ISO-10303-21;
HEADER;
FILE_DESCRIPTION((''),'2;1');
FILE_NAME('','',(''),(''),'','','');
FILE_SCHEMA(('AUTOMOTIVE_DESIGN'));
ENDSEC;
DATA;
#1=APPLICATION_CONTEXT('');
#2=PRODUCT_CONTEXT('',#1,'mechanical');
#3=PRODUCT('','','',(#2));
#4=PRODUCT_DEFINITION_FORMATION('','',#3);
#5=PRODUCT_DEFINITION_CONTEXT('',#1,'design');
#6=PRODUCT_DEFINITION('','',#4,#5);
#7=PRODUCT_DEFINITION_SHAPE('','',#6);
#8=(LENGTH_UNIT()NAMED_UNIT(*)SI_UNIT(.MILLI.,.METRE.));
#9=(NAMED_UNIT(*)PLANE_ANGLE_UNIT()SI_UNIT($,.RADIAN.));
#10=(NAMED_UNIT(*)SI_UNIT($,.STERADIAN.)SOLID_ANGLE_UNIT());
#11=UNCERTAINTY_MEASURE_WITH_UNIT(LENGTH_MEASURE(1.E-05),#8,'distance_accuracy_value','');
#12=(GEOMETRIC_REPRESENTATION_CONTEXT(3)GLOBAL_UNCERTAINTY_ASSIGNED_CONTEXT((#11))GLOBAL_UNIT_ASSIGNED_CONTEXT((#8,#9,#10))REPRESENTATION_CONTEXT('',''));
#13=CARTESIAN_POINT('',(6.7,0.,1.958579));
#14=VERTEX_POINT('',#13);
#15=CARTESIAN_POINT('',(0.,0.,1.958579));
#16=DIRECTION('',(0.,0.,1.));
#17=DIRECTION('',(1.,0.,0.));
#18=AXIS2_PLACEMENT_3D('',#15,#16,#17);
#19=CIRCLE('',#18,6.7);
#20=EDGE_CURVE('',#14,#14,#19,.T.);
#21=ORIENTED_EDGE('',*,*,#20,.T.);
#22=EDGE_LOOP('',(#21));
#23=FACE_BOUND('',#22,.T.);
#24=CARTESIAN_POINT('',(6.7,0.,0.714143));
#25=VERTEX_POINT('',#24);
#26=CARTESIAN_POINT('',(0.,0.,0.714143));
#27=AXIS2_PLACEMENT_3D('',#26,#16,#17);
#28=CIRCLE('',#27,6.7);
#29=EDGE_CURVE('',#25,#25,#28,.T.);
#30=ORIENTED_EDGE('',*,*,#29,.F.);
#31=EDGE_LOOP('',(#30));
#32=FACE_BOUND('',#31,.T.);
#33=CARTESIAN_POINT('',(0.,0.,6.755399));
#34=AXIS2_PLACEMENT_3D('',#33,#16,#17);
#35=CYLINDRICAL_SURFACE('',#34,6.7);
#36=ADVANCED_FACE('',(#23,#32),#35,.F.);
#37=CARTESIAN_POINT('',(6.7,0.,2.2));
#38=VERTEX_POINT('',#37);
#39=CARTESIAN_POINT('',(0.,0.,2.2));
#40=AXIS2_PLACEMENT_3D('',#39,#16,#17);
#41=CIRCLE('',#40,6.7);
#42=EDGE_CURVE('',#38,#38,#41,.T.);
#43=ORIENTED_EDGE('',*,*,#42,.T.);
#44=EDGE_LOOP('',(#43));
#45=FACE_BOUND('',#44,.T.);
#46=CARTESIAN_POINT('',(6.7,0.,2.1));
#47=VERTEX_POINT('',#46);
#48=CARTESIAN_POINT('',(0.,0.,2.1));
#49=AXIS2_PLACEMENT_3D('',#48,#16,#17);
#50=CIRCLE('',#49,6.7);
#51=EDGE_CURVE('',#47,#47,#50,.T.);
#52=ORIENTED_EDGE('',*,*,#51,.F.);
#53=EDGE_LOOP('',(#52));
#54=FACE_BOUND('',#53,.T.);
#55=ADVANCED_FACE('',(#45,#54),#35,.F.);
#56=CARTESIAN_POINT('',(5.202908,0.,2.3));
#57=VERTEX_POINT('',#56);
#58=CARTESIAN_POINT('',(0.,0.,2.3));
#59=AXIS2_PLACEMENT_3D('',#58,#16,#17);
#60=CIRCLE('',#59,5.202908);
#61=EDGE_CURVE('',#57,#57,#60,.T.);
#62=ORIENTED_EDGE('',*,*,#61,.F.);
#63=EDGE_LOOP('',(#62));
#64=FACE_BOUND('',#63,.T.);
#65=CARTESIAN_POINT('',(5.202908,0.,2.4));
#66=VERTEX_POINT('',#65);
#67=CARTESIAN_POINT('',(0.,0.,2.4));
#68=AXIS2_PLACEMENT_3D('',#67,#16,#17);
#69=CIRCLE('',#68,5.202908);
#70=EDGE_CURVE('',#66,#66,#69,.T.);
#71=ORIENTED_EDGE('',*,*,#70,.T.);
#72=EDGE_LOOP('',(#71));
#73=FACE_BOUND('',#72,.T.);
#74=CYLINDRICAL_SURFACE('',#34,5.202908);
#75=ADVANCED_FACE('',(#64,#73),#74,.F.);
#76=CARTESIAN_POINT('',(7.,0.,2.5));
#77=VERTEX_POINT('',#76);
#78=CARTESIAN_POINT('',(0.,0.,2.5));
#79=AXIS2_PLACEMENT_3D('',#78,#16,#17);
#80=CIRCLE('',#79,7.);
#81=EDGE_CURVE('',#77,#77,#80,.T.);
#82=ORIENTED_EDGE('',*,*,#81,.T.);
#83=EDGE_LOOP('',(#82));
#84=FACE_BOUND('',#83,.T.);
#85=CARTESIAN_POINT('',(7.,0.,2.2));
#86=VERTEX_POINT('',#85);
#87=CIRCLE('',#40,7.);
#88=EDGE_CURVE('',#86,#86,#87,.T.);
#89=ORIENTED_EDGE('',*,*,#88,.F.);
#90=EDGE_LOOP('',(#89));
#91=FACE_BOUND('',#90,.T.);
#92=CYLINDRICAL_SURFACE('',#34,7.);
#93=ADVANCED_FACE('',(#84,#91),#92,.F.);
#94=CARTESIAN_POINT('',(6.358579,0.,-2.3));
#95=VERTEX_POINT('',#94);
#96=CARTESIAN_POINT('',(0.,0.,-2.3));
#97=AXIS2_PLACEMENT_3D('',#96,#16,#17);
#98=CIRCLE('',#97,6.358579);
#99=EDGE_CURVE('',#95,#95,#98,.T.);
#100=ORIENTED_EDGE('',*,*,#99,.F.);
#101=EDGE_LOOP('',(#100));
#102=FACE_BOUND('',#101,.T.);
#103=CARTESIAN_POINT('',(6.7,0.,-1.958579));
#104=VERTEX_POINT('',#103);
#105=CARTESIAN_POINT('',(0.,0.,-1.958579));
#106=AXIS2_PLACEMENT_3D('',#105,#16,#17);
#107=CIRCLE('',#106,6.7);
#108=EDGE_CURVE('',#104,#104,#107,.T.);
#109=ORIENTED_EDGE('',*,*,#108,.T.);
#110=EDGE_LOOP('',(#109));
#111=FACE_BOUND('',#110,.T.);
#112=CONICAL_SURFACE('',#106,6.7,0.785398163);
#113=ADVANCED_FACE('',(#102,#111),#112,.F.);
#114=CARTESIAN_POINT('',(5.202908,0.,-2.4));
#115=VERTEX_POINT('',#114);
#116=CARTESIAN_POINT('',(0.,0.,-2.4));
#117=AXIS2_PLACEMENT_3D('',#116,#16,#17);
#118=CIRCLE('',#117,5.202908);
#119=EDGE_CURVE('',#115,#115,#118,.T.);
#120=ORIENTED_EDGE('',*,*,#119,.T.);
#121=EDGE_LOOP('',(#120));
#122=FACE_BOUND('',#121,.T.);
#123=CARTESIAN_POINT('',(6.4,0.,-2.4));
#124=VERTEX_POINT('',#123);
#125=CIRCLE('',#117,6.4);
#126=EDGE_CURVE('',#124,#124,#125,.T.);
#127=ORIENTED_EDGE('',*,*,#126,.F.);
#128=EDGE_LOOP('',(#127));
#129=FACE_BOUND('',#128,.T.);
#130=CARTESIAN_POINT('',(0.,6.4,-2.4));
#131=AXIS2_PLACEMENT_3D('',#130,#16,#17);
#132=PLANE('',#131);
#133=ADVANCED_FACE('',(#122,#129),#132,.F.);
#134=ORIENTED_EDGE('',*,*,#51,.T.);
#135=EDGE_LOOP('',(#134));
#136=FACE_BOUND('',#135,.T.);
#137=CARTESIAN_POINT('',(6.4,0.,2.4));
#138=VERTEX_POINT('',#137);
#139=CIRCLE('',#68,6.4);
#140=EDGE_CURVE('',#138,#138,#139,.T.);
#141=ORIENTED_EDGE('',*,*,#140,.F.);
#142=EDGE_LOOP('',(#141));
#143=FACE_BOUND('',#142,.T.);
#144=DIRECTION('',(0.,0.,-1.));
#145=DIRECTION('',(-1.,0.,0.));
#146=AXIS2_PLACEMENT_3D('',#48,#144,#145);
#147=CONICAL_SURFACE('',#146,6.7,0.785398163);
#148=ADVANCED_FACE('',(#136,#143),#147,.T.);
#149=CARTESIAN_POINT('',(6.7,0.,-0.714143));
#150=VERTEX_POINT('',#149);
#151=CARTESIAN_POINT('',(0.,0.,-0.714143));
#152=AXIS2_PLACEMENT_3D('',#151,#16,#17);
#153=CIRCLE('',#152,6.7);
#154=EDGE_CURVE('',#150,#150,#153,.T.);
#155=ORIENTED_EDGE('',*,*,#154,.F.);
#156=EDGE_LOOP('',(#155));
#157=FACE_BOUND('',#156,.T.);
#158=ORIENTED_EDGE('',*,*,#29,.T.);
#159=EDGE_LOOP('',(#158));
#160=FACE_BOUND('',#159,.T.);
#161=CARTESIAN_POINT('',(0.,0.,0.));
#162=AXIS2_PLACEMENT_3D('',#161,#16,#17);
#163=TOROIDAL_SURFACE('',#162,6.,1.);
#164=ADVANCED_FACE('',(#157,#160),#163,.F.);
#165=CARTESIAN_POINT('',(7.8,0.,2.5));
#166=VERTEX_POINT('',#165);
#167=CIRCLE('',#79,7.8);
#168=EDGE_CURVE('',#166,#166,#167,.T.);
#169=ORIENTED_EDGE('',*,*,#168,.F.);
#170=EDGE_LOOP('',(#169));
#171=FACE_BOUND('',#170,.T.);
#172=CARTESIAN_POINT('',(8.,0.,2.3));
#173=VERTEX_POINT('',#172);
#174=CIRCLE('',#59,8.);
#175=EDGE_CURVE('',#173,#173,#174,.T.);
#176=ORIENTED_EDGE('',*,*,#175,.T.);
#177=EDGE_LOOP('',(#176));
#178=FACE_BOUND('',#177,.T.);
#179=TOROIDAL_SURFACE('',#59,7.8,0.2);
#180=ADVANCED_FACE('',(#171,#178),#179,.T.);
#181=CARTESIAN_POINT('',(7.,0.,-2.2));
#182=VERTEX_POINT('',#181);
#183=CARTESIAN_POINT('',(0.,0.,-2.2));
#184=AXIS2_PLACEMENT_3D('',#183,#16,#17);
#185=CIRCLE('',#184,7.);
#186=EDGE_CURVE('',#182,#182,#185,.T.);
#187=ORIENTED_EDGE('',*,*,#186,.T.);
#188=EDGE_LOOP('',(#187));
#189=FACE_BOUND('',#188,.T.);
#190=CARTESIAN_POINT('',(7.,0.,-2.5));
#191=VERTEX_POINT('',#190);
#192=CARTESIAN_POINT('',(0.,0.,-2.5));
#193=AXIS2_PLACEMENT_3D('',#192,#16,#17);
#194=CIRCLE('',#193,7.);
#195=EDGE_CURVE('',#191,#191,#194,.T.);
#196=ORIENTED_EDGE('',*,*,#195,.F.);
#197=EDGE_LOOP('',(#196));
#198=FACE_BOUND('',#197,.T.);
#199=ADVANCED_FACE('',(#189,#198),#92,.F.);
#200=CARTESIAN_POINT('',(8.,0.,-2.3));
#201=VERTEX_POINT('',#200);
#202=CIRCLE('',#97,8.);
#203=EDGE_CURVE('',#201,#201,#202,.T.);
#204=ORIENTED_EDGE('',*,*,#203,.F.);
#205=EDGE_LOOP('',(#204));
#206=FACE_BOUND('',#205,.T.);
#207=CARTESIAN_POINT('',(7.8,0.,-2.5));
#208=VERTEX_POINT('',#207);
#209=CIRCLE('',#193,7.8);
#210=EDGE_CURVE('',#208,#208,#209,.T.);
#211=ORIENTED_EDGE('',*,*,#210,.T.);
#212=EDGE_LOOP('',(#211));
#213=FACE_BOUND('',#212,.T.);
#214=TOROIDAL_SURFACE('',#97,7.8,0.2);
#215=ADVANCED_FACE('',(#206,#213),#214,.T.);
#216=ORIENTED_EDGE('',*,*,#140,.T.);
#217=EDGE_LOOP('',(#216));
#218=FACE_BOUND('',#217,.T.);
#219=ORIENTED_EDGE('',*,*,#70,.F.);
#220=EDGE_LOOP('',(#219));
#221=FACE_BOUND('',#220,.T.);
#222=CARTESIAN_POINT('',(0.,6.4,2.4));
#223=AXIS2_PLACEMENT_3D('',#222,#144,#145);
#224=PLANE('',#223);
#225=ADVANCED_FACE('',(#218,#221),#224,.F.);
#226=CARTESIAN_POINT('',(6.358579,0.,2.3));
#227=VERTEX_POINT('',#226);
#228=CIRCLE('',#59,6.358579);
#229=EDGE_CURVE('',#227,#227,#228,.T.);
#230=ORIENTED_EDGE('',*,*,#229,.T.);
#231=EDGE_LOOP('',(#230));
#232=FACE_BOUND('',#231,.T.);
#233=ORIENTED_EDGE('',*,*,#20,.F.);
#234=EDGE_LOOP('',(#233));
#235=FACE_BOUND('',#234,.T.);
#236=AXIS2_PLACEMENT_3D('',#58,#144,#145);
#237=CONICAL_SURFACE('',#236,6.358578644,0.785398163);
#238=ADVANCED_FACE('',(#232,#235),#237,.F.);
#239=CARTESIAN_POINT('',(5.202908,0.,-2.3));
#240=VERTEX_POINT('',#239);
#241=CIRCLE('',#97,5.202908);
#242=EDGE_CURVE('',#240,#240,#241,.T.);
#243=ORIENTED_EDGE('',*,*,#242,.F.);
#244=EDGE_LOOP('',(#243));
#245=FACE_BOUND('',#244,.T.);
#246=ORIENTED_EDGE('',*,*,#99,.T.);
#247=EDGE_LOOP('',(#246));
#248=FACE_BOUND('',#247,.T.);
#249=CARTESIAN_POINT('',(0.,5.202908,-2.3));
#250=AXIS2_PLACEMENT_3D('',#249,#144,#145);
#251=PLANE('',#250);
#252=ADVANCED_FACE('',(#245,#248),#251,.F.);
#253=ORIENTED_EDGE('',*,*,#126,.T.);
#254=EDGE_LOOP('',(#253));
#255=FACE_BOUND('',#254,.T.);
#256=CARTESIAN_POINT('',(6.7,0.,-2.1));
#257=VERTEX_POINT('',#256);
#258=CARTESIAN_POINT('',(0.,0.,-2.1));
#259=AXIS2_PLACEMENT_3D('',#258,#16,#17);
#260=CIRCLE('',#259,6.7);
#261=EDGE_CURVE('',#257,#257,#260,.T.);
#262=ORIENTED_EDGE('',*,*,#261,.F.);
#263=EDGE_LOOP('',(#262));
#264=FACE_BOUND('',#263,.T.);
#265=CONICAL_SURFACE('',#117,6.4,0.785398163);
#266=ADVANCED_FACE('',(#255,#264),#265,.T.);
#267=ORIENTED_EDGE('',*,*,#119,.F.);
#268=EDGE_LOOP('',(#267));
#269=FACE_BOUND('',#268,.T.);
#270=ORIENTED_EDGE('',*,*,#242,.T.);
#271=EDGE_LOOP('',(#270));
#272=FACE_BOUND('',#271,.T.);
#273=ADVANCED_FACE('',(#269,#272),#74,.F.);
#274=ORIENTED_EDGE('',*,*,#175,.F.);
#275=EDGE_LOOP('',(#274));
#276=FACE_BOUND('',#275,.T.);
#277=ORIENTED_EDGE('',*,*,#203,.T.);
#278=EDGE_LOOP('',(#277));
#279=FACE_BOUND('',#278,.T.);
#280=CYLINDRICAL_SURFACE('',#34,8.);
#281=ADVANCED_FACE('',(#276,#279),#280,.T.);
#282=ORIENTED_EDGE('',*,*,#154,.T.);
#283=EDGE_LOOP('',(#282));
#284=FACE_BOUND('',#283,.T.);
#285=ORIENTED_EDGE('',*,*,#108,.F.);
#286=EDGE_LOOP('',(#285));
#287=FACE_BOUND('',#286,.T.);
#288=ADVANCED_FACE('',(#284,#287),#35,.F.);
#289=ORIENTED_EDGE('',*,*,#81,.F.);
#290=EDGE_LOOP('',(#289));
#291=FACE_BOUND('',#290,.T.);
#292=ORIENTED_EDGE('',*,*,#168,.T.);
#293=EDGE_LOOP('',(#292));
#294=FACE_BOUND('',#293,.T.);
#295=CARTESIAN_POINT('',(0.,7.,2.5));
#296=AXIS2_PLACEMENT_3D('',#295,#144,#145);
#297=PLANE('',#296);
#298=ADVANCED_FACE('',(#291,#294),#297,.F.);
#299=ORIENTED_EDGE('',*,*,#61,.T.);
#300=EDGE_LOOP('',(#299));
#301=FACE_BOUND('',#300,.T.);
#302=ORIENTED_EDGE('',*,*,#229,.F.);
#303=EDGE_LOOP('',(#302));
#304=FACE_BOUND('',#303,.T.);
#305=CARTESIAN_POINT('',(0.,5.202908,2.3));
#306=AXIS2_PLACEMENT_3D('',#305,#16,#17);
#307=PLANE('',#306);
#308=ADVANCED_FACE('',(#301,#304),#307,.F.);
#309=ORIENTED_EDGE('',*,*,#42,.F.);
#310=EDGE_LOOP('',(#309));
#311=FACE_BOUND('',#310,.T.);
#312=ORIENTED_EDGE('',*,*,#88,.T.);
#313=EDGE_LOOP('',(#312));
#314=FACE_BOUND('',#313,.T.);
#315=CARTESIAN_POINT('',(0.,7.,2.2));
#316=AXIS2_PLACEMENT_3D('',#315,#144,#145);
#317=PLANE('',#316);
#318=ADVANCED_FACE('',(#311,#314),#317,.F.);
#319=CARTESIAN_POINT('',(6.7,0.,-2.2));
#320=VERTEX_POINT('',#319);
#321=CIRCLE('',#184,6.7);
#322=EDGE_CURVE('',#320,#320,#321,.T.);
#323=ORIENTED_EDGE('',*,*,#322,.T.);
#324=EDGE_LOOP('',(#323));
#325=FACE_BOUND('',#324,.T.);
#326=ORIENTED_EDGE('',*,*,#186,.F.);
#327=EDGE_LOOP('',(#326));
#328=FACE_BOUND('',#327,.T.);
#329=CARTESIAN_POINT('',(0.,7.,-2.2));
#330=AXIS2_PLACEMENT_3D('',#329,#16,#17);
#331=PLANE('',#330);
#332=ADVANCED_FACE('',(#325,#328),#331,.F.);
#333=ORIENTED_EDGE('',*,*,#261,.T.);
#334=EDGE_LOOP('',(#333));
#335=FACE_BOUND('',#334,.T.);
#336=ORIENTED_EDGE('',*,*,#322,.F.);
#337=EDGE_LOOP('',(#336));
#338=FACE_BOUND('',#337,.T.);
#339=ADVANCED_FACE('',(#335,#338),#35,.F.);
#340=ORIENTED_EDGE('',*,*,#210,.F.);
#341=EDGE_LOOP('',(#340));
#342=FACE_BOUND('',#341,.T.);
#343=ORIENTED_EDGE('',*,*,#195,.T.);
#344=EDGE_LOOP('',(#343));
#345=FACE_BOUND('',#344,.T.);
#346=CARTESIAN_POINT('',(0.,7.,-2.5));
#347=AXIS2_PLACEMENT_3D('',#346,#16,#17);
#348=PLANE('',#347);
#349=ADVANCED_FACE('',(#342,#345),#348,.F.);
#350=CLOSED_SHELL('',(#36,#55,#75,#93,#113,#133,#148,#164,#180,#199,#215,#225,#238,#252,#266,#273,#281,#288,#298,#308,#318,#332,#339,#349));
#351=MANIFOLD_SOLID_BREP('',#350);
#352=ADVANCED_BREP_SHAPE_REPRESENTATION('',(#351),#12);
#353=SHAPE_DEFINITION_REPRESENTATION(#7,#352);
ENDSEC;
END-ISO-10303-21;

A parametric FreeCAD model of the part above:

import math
import FreeCAD as App
import Part
import Sketcher

V = App.Vector
Q = App.Units.Quantity

doc = App.newDocument("Part")
params = doc.addObject("Spreadsheet::Sheet", "Params")
for row, (alias, value) in enumerate([
    ("sketch1_radius", "1 mm"),
    ("sketch1_radius2", "0.2 mm"),
    ("sketch1_width", "0.8 mm"),
    ("sketch1_width2", "0.3 mm"),
    ("sketch1_height", "0.1 mm"),
    ("revolution_angle", "360 deg"),
], start=1):
    params.set(f"A{row}", alias)
    params.set(f"B{row}", "=" + value)
    params.setAlias(f"B{row}", alias)

body = doc.addObject("PartDesign::Body", "Body")

# Sketch on YZ plane
sketch1 = body.newObject("Sketcher::SketchObject", "Sketch")
sketch1.AttachmentSupport = (doc.getObject("YZ_Plane"), [""])
sketch1.MapMode = "FlatFace"
sketch1.addGeometry([
    Part.LineSegment(V(7.8, 2.5, 0), V(7, 2.5, 0)),  # 0
    Part.LineSegment(V(7, 2.5, 0), V(7, 2.2, 0)),  # 1
    Part.LineSegment(V(7, 2.2, 0), V(6.7, 2.2, 0)),  # 2
    Part.LineSegment(V(6.7, 2.2, 0), V(6.7, 2.1, 0)),  # 3
    Part.LineSegment(V(6.7, 2.1, 0), V(6.4, 2.4, 0)),  # 4
    Part.LineSegment(V(6.4, 2.4, 0), V(5.2, 2.4, 0)),  # 5
    Part.LineSegment(V(5.2, 2.4, 0), V(5.2, 2.3, 0)),  # 6
    Part.LineSegment(V(5.2, 2.3, 0), V(6.36, 2.3, 0)),  # 7
    Part.LineSegment(V(6.36, 2.3, 0), V(6.7, 1.96, 0)),  # 8
    Part.LineSegment(V(6.7, 1.96, 0), V(6.7, 0.71, 0)),  # 9
    Part.ArcOfCircle(Part.Circle(V(6, 0, 0), V(0, 0, 1), 1), math.radians(-46), math.radians(46)),  # 10
    Part.LineSegment(V(6.7, -0.71, 0), V(6.7, -1.96, 0)),  # 11
    Part.LineSegment(V(6.7, -1.96, 0), V(6.36, -2.3, 0)),  # 12
    Part.LineSegment(V(6.36, -2.3, 0), V(5.2, -2.3, 0)),  # 13
    Part.LineSegment(V(5.2, -2.3, 0), V(5.2, -2.4, 0)),  # 14
    Part.LineSegment(V(5.2, -2.4, 0), V(6.4, -2.4, 0)),  # 15
    Part.LineSegment(V(6.4, -2.4, 0), V(6.7, -2.1, 0)),  # 16
    Part.LineSegment(V(6.7, -2.1, 0), V(6.7, -2.2, 0)),  # 17
    Part.LineSegment(V(6.7, -2.2, 0), V(7, -2.2, 0)),  # 18
    Part.LineSegment(V(7, -2.2, 0), V(7, -2.5, 0)),  # 19
    Part.LineSegment(V(7, -2.5, 0), V(7.8, -2.5, 0)),  # 20
    Part.ArcOfCircle(Part.Circle(V(7.8, -2.3, 0), V(0, 0, 1), 0.2), math.radians(-90), math.radians(0)),  # 21
    Part.LineSegment(V(8, -2.3, 0), V(8, 2.3, 0)),  # 22
    Part.ArcOfCircle(Part.Circle(V(7.8, 2.3, 0), V(0, 0, 1), 0.2), math.radians(0), math.radians(90)),  # 23
], False)
sketch1.addConstraint([
    Sketcher.Constraint("Coincident", 0, 2, 1, 1),
    Sketcher.Constraint("Coincident", 1, 2, 2, 1),
    Sketcher.Constraint("Coincident", 2, 2, 3, 1),
    Sketcher.Constraint("Coincident", 3, 2, 4, 1),
    Sketcher.Constraint("Coincident", 4, 2, 5, 1),
    Sketcher.Constraint("Coincident", 5, 2, 6, 1),
    Sketcher.Constraint("Coincident", 6, 2, 7, 1),
    Sketcher.Constraint("Coincident", 7, 2, 8, 1),
    Sketcher.Constraint("Coincident", 8, 2, 9, 1),
    Sketcher.Constraint("Coincident", 9, 2, 10, 2),
    Sketcher.Constraint("Coincident", 10, 1, 11, 1),
    Sketcher.Constraint("Coincident", 11, 2, 12, 1),
    Sketcher.Constraint("Coincident", 12, 2, 13, 1),
    Sketcher.Constraint("Coincident", 13, 2, 14, 1),
    Sketcher.Constraint("Coincident", 14, 2, 15, 1),
    Sketcher.Constraint("Coincident", 15, 2, 16, 1),
    Sketcher.Constraint("Coincident", 16, 2, 17, 1),
    Sketcher.Constraint("Coincident", 17, 2, 18, 1),
    Sketcher.Constraint("Coincident", 18, 2, 19, 1),
    Sketcher.Constraint("Coincident", 19, 2, 20, 1),
    Sketcher.Constraint("Tangent", 20, 2, 21, 1),
    Sketcher.Constraint("Tangent", 21, 2, 22, 1),
    Sketcher.Constraint("Tangent", 22, 2, 23, 1),
    Sketcher.Constraint("Tangent", 23, 2, 0, 1),
    Sketcher.Constraint("Horizontal", 0),
    Sketcher.Constraint("Vertical", 1),
    Sketcher.Constraint("Horizontal", 2),
    Sketcher.Constraint("Vertical", 3),
    Sketcher.Constraint("Horizontal", 5),
    Sketcher.Constraint("Vertical", 6),
    Sketcher.Constraint("Horizontal", 7),
    Sketcher.Constraint("Vertical", 9),
    Sketcher.Constraint("Vertical", 11),
    Sketcher.Constraint("Horizontal", 13),
    Sketcher.Constraint("Vertical", 14),
    Sketcher.Constraint("Horizontal", 15),
    Sketcher.Constraint("Vertical", 17),
    Sketcher.Constraint("Horizontal", 18),
    Sketcher.Constraint("Vertical", 19),
    Sketcher.Constraint("Horizontal", 20),
    Sketcher.Constraint("Vertical", 22),
    Sketcher.Constraint("Equal", 21, 23),
    Sketcher.Constraint("Symmetric", 9, 2, 10, 1, -1),
    Sketcher.Constraint("Symmetric", 7, 2, 12, 2, -1),
    Sketcher.Constraint("Symmetric", 5, 2, 14, 2, -1),
    Sketcher.Constraint("Symmetric", 3, 2, 16, 2, -1),
    Sketcher.Constraint("Symmetric", 1, 2, 18, 2, -1),
    Sketcher.Constraint("Parallel", 4, 8),
    Sketcher.Constraint("Perpendicular", 8, 12),
    Sketcher.Constraint("Parallel", 12, 16),
    Sketcher.Constraint("Horizontal", 23, 3, 6, 2),
    Sketcher.Constraint("Horizontal", 21, 3, 12, 2),
    Sketcher.Constraint("Vertical", 3, 2, 8, 2),
    Sketcher.Constraint("Vertical", 4, 2, 15, 2),
    Sketcher.Constraint("Equal", 18, 1),
    Sketcher.Constraint("Equal", 3, 6),
    Sketcher.Constraint("Radius", 10, Q("1 mm")),
    Sketcher.Constraint("Radius", 21, Q("0.2 mm")),
    Sketcher.Constraint("DistanceX", 0, 2, 0, 1, Q("0.8 mm")),
    Sketcher.Constraint("DistanceX", 2, 2, 2, 1, Q("0.3 mm")),
    Sketcher.Constraint("DistanceY", 3, 2, 3, 1, Q("0.1 mm")),
    Sketcher.Constraint("DistanceY", 22, 1, 22, 2, Q("4.6 mm")),
    Sketcher.Constraint("DistanceX", -1, 1, 10, 3, Q("6 mm")),
    Sketcher.Constraint("DistanceX", -1, 1, 0, 2, Q("7 mm")),
    Sketcher.Constraint("DistanceX", 7, 1, 7, 2, Q("1.155671 mm")),
    Sketcher.Constraint("DistanceX", 5, 2, 5, 1, Q("1.197092 mm")),
])
sketch1.setExpression("Constraints[56]", "Params.sketch1_radius")
sketch1.setExpression("Constraints[57]", "Params.sketch1_radius2")
sketch1.setExpression("Constraints[58]", "Params.sketch1_width")
sketch1.setExpression("Constraints[59]", "Params.sketch1_width2")
sketch1.setExpression("Constraints[60]", "Params.sketch1_height")
revolution = body.newObject("PartDesign::Revolution", "Revolution")
revolution.Profile = sketch1
revolution.ReferenceAxis = (sketch1, ["V_Axis"])
revolution.setExpression("Angle", "Params.revolution_angle")

doc.recompute()
